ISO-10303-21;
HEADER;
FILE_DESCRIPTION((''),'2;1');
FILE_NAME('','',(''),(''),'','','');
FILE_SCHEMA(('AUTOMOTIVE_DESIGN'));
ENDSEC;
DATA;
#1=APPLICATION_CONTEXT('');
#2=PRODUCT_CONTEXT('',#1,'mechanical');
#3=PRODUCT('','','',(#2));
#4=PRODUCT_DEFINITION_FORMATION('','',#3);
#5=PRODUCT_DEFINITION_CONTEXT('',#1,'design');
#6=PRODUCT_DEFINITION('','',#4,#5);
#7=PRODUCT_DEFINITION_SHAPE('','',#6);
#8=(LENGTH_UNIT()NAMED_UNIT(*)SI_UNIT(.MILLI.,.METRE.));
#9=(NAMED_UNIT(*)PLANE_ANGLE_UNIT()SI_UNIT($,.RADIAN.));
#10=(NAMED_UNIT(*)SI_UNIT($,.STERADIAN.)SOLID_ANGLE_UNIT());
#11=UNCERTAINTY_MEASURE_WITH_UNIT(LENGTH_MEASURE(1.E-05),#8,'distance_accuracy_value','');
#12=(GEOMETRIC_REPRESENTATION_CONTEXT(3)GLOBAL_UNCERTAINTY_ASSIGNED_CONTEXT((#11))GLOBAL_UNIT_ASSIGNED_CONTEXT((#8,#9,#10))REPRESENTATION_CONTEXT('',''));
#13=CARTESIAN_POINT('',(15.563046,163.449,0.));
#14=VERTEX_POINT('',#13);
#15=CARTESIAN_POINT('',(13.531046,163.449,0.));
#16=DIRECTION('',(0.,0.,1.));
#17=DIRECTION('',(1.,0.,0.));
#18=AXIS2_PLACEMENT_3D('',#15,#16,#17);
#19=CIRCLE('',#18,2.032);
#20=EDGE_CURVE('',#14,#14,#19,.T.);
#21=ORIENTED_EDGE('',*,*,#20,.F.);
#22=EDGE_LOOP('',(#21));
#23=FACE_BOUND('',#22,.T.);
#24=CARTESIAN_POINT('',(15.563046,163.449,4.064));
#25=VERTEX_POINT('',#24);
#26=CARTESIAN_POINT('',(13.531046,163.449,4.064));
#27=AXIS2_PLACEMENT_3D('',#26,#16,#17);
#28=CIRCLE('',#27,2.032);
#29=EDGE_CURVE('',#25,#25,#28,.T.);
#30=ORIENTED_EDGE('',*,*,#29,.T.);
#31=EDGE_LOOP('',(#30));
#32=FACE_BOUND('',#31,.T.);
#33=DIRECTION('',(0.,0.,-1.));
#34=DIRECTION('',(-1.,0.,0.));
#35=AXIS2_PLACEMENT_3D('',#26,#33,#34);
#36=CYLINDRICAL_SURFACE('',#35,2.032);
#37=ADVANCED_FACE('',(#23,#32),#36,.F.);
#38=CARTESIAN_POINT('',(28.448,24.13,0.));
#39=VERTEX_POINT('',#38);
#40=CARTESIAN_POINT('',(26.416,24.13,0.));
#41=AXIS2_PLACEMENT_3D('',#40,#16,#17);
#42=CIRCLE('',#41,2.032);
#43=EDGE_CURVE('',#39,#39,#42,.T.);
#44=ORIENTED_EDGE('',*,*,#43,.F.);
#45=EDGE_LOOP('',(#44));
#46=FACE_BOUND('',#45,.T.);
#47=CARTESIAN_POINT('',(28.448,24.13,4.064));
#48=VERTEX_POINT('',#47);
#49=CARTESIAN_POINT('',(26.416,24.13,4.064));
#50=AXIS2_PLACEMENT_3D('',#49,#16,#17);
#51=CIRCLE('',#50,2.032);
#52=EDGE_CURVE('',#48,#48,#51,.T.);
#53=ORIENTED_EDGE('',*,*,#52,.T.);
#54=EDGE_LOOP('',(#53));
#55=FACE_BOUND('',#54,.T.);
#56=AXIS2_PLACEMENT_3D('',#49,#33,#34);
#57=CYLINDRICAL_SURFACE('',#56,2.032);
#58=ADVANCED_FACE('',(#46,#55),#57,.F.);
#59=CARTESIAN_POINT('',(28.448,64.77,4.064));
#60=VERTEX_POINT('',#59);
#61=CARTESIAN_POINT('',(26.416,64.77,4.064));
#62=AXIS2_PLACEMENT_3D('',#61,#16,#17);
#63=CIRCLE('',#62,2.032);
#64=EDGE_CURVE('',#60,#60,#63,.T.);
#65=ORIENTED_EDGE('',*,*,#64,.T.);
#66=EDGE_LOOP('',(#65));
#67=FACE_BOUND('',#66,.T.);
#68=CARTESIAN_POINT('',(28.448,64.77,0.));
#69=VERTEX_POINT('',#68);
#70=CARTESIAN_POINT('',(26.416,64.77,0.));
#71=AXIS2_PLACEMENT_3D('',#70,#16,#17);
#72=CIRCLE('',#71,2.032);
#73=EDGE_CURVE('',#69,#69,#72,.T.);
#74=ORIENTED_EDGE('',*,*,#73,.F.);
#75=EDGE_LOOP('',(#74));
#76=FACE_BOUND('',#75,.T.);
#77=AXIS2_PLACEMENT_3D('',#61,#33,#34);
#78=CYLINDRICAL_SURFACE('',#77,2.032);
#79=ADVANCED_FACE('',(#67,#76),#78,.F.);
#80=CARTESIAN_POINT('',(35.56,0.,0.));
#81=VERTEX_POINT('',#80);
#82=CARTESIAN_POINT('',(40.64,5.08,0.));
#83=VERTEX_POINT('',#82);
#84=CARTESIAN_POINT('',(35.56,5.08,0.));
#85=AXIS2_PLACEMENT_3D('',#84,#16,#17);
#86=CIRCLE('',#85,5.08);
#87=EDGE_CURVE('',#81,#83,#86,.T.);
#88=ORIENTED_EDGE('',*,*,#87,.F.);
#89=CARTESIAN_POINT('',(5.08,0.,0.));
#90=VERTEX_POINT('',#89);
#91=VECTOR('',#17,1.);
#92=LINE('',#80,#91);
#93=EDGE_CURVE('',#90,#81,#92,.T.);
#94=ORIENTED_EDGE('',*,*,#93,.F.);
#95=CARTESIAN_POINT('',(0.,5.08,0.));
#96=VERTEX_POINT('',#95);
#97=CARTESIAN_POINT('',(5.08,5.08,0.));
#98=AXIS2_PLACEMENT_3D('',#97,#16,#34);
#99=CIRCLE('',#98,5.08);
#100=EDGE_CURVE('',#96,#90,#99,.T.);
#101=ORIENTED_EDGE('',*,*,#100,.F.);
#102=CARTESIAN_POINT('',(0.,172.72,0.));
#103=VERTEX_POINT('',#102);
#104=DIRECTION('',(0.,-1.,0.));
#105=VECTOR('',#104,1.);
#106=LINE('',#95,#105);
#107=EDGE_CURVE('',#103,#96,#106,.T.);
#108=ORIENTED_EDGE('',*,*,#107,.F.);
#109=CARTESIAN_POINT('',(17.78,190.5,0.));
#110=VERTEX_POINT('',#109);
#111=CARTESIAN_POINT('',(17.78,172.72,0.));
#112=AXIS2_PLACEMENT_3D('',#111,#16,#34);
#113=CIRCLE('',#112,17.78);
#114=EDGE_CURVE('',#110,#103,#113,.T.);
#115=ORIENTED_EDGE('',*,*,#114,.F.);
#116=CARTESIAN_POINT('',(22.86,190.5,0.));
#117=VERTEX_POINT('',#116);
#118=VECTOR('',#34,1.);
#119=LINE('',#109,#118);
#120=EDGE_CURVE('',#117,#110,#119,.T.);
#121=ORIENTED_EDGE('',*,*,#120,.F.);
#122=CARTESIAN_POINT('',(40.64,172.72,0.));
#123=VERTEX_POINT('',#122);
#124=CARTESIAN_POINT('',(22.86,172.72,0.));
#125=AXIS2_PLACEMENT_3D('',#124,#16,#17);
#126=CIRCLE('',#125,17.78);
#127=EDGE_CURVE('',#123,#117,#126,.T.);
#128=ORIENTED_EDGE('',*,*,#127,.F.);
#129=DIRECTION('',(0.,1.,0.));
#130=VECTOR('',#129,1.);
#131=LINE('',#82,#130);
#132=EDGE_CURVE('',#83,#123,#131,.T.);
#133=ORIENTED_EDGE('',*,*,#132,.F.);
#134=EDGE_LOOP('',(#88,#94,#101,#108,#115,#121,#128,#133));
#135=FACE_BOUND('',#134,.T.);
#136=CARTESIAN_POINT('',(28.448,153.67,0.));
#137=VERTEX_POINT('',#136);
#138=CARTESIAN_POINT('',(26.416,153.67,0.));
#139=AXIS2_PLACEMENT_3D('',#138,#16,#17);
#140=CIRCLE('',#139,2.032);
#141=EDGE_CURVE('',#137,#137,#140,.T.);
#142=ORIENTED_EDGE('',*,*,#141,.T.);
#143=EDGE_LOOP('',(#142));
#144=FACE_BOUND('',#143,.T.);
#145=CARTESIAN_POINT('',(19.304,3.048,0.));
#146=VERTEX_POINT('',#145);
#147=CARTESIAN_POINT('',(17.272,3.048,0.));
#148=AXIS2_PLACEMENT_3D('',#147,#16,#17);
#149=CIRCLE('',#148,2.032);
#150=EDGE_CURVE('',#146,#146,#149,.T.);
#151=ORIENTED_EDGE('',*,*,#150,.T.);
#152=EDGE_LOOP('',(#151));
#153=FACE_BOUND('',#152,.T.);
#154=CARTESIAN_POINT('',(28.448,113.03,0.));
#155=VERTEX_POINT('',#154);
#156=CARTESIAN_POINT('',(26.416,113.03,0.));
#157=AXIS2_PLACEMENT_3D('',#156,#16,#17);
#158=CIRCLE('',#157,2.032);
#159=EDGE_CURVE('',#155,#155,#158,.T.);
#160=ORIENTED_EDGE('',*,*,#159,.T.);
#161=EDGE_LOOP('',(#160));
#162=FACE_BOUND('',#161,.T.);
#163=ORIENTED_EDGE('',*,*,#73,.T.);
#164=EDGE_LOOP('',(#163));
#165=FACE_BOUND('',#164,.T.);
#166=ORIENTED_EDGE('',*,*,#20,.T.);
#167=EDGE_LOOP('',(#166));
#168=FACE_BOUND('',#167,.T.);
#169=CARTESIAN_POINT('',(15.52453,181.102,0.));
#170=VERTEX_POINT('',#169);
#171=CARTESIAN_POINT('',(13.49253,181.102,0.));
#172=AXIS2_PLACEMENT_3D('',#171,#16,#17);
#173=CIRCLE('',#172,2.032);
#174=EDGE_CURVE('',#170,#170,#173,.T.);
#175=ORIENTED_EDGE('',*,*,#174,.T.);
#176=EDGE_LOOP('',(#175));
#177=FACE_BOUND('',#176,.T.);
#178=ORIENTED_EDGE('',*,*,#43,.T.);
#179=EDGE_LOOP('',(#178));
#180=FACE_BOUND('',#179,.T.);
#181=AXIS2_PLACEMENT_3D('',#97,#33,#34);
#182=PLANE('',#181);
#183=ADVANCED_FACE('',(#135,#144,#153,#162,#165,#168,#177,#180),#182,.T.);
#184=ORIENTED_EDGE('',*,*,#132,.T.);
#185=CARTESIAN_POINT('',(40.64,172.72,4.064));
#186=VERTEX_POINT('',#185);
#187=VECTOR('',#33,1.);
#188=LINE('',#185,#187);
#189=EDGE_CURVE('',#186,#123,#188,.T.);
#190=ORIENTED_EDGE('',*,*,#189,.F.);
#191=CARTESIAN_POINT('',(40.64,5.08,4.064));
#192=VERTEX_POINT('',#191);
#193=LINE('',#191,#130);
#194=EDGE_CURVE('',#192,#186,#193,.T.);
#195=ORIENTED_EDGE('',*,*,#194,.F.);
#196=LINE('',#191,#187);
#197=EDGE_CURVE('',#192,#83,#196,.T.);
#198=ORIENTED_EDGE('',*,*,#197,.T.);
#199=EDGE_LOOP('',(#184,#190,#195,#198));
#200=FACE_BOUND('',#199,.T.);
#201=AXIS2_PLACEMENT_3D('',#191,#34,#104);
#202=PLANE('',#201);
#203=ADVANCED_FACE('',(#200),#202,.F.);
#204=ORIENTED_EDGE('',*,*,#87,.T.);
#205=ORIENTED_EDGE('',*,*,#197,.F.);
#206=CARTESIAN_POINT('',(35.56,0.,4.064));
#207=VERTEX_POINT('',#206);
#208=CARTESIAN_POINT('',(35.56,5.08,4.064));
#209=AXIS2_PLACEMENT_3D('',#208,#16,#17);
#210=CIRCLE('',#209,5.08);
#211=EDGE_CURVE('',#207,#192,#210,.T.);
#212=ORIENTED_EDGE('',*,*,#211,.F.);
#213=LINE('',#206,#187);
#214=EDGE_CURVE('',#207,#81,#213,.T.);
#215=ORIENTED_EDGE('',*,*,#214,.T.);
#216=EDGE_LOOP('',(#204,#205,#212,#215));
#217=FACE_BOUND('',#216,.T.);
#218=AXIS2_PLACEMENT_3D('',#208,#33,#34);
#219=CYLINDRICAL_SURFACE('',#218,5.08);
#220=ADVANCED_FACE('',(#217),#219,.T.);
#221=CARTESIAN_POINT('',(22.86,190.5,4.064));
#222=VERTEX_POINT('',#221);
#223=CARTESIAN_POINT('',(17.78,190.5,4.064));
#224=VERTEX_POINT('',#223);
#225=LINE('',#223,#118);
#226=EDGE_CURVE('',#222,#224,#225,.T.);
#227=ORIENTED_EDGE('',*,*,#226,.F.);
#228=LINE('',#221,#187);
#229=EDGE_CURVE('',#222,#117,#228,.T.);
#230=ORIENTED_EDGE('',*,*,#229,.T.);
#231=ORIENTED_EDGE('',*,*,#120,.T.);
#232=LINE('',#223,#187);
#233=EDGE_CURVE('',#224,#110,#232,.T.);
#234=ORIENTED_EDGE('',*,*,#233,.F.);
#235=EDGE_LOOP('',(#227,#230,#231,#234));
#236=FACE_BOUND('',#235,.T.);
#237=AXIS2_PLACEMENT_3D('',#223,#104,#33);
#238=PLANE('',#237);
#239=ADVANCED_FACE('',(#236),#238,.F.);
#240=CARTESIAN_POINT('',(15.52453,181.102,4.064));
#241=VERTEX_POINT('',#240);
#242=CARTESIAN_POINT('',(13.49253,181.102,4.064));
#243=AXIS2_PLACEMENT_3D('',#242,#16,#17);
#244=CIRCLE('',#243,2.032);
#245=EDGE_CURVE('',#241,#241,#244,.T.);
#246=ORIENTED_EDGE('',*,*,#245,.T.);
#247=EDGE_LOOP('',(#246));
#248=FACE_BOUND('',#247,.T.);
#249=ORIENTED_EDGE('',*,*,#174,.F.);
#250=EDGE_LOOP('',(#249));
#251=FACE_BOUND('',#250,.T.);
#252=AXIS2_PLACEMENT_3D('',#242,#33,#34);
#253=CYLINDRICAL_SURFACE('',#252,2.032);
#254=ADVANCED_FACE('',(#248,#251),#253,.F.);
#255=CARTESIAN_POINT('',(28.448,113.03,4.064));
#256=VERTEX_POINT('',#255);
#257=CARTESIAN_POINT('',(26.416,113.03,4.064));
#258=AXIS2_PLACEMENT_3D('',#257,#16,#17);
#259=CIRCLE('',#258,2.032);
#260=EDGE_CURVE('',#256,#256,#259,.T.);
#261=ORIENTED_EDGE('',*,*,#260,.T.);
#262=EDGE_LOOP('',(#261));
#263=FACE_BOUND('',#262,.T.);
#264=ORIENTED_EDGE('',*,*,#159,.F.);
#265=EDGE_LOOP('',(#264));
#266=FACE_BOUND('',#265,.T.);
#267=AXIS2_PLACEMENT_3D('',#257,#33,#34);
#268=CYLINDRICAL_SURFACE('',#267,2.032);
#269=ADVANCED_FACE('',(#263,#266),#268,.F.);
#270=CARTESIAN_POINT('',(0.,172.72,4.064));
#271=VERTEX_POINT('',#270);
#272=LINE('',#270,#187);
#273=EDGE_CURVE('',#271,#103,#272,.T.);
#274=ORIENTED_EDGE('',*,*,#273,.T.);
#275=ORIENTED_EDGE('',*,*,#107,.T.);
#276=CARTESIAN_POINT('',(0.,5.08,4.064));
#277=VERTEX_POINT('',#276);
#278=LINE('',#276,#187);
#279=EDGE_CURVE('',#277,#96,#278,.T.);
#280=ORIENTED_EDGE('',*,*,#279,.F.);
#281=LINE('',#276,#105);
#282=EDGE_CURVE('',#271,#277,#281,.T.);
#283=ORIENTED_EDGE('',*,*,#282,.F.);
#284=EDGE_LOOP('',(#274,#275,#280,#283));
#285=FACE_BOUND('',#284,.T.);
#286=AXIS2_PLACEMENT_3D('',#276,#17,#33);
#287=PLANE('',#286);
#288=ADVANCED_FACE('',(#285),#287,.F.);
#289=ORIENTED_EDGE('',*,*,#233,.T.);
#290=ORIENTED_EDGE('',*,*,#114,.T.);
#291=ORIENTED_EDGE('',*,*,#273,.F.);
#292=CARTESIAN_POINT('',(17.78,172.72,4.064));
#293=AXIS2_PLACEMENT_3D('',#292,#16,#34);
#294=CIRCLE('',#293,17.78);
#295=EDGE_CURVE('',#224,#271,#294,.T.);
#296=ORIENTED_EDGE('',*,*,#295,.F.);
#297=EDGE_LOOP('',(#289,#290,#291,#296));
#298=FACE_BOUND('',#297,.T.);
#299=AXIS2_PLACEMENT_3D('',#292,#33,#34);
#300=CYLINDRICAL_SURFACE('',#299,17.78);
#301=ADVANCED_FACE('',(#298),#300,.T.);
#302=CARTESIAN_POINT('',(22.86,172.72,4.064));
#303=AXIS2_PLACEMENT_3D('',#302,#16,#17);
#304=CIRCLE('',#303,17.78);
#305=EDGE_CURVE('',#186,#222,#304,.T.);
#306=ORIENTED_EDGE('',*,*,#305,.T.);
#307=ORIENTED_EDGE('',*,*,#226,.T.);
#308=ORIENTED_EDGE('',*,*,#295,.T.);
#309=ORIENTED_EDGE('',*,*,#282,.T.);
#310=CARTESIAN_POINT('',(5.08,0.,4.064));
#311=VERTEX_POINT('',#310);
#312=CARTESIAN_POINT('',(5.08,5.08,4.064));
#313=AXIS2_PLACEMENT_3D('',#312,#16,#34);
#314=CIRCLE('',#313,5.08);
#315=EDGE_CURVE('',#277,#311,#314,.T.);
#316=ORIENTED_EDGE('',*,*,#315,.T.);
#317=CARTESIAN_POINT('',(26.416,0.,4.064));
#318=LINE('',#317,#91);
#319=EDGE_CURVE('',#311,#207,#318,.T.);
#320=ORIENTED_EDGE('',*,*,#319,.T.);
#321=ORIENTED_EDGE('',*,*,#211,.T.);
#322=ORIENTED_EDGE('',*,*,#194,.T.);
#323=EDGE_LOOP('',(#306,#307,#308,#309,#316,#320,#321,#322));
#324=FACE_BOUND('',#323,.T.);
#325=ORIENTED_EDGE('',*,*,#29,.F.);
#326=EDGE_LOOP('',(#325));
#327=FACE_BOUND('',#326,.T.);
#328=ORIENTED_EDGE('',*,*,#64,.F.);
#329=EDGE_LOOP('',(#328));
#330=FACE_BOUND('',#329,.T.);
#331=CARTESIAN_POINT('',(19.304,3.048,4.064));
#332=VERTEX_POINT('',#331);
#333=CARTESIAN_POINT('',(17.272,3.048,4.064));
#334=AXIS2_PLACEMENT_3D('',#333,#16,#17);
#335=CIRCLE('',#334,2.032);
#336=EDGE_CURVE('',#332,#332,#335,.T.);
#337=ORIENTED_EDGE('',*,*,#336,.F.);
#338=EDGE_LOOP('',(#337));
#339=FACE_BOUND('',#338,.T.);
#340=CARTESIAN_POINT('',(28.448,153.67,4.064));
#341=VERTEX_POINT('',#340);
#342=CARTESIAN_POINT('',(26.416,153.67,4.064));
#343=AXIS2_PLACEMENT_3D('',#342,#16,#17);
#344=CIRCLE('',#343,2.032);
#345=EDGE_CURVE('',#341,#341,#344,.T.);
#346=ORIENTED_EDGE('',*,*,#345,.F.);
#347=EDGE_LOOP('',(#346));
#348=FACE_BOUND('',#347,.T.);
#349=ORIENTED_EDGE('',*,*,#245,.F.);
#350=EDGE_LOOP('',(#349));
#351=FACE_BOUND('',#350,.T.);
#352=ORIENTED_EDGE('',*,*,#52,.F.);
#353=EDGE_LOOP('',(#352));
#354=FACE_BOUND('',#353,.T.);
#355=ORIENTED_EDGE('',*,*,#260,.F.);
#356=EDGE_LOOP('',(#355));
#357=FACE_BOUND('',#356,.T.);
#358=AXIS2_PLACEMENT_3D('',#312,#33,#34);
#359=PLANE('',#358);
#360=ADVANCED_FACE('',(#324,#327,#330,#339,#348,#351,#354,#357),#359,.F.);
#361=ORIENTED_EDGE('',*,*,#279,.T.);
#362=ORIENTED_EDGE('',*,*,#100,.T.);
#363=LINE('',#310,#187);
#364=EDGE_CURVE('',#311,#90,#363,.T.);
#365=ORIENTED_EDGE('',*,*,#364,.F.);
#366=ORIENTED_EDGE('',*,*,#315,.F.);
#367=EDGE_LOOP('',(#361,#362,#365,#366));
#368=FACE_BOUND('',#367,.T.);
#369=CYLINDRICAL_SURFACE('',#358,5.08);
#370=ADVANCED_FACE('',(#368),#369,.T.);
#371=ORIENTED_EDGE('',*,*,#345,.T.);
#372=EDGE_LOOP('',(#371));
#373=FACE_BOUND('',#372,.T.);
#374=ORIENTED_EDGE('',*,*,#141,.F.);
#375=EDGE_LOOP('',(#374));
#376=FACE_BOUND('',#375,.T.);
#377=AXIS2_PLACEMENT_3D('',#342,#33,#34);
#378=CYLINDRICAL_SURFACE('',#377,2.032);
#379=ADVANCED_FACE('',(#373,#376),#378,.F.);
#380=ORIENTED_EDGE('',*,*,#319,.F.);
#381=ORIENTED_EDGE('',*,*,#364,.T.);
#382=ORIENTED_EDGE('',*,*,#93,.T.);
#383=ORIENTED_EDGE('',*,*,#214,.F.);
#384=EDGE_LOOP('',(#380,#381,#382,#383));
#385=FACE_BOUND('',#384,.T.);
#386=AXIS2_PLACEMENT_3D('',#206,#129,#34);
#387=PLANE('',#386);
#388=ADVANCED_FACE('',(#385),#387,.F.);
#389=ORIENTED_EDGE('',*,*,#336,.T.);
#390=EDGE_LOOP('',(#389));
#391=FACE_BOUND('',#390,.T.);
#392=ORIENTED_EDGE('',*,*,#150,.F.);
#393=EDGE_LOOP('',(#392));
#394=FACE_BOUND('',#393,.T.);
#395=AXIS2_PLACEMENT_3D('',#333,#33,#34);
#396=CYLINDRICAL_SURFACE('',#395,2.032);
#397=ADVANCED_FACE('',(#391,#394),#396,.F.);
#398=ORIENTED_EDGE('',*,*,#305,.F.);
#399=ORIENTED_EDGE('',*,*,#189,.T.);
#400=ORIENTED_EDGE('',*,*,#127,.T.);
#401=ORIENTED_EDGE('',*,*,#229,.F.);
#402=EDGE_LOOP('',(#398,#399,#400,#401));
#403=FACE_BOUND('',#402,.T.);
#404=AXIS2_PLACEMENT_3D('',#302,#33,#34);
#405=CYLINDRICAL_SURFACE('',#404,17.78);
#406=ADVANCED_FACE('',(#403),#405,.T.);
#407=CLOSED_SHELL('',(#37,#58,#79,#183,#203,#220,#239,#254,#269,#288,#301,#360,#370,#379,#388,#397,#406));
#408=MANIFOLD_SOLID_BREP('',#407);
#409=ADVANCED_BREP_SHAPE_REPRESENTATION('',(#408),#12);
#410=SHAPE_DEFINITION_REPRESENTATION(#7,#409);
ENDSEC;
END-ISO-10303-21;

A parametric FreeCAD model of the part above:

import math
import FreeCAD as App
import Part
import Sketcher

V = App.Vector
Q = App.Units.Quantity

doc = App.newDocument("Part")
body = doc.addObject("PartDesign::Body", "Body")

# Sketch on XY plane
sketch1 = body.newObject("Sketcher::SketchObject", "Sketch")
sketch1.AttachmentSupport = (doc.getObject("XY_Plane"), [""])
sketch1.MapMode = "FlatFace"
sketch1.addGeometry(Part.LineSegment(V(40.6, 5.1, 0), V(40.6, 172.7, 0)), False)
sketch1.addGeometry(Part.ArcOfCircle(Part.Circle(V(22.9, 172.7, 0), V(0, 0, 1), 17.8), math.radians(0), math.radians(90)), False)
sketch1.addGeometry(Part.LineSegment(V(22.9, 190.5, 0), V(17.8, 190.5, 0)), False)
sketch1.addGeometry(Part.ArcOfCircle(Part.Circle(V(17.8, 172.7, 0), V(0, 0, 1), 17.8), math.radians(90), math.radians(180)), False)
sketch1.addGeometry(Part.LineSegment(V(0, 172.7, 0), V(0, 5.1, 0)), False)
sketch1.addGeometry(Part.ArcOfCircle(Part.Circle(V(5.1, 5.1, 0), V(0, 0, 1), 5.1), math.radians(-180), math.radians(-90)), False)
sketch1.addGeometry(Part.LineSegment(V(5.1, 0, 0), V(35.6, 0, 0)), False)
sketch1.addGeometry(Part.ArcOfCircle(Part.Circle(V(35.6, 5.1, 0), V(0, 0, 1), 5.1), math.radians(-90), math.radians(0)), False)
sketch1.addGeometry(Part.Circle(V(17.3, 3, 0), V(0, 0, 1), 2), False)
sketch1.addGeometry(Part.Circle(V(26.4, 24.1, 0), V(0, 0, 1), 2), False)
sketch1.addGeometry(Part.Circle(V(26.4, 64.8, 0), V(0, 0, 1), 2), False)
sketch1.addGeometry(Part.Circle(V(13.5, 163.4, 0), V(0, 0, 1), 2), False)
sketch1.addGeometry(Part.Circle(V(13.5, 181.1, 0), V(0, 0, 1), 2), False)
sketch1.addGeometry(Part.Circle(V(26.4, 113, 0), V(0, 0, 1), 2), False)
sketch1.addGeometry(Part.Circle(V(26.4, 153.7, 0), V(0, 0, 1), 2), False)
sketch1.addConstraint(Sketcher.Constraint("Tangent", 0, 2, 1, 1))
sketch1.addConstraint(Sketcher.Constraint("Tangent", 1, 2, 2, 1))
sketch1.addConstraint(Sketcher.Constraint("Tangent", 2, 2, 3, 1))
sketch1.addConstraint(Sketcher.Constraint("Tangent", 3, 2, 4, 1))
sketch1.addConstraint(Sketcher.Constraint("Tangent", 4, 2, 5, 1))
sketch1.addConstraint(Sketcher.Constraint("Tangent", 5, 2, 6, 1))
sketch1.addConstraint(Sketcher.Constraint("Tangent", 6, 2, 7, 1))
sketch1.addConstraint(Sketcher.Constraint("Tangent", 7, 2, 0, 1))
sketch1.addConstraint(Sketcher.Constraint("Vertical", 0))
sketch1.addConstraint(Sketcher.Constraint("Horizontal", 2))
sketch1.addConstraint(Sketcher.Constraint("Vertical", 4))
sketch1.addConstraint(Sketcher.Constraint("Horizontal", 6))
sketch1.addConstraint(Sketcher.Constraint("Equal", 1, 3))
sketch1.addConstraint(Sketcher.Constraint("Equal", 5, 7))
sketch1.addConstraint(Sketcher.Constraint("Equal", 8, 9))
sketch1.addConstraint(Sketcher.Constraint("Equal", 9, 10))
sketch1.addConstraint(Sketcher.Constraint("Equal", 10, 11))
sketch1.addConstraint(Sketcher.Constraint("Equal", 11, 12))
sketch1.addConstraint(Sketcher.Constraint("Equal", 12, 13))
sketch1.addConstraint(Sketcher.Constraint("Equal", 13, 14))
sketch1.addConstraint(Sketcher.Constraint("PointOnObject", 3, 2, -2))
sketch1.addConstraint(Sketcher.Constraint("PointOnObject", 5, 2, -1))
sketch1.addConstraint(Sketcher.Constraint("Vertical", 9, 3, 10, 3))
sketch1.addConstraint(Sketcher.Constraint("Vertical", 10, 3, 13, 3))
sketch1.addConstraint(Sketcher.Constraint("Vertical", 13, 3, 14, 3))
sketch1.addConstraint(Sketcher.Constraint("Radius", 1, Q("0.7 in")))
sketch1.addConstraint(Sketcher.Constraint("Radius", 5, Q("0.2 in")))
sketch1.addConstraint(Sketcher.Constraint("Diameter", 8, Q("0.16 in")))
sketch1.addConstraint(Sketcher.Constraint("DistanceX", 2, 2, 2, 1, Q("0.2 in")))
sketch1.addConstraint(Sketcher.Constraint("DistanceY", 0, 1, 0, 2, Q("6.6 in")))
sketch1.addConstraint(Sketcher.Constraint("DistanceY", 9, 3, 10, 3, Q("1.6 in")))
sketch1.addConstraint(Sketcher.Constraint("DistanceY", 10, 3, 13, 3, Q("1.9 in")))
sketch1.addConstraint(Sketcher.Constraint("DistanceY", 13, 3, 14, 3, Q("1.6 in")))
sketch1.addConstraint(Sketcher.Constraint("DistanceX", -1, 1, 8, 3, Q("0.68 in")))
sketch1.addConstraint(Sketcher.Constraint("DistanceY", -1, 1, 8, 3, Q("0.12 in")))
sketch1.addConstraint(Sketcher.Constraint("DistanceX", -1, 1, 9, 3, Q("1.04 in")))
sketch1.addConstraint(Sketcher.Constraint("DistanceY", -1, 1, 9, 3, Q("0.95 in")))
sketch1.addConstraint(Sketcher.Constraint("DistanceY", -1, 1, 12, 3, Q("7.13 in")))
sketch1.addConstraint(Sketcher.Constraint("DistanceY", -1, 1, 11, 3, Q("6.435 in")))
sketch1.addConstraint(Sketcher.Constraint("DistanceX", -1, 1, 12, 3, Q("13.49253 mm")))
sketch1.addConstraint(Sketcher.Constraint("DistanceX", -1, 1, 11, 3, Q("13.531046 mm")))
pad1 = body.newObject("PartDesign::Pad", "Pad")
pad1.Profile = sketch1
pad1.Length = Q("0.16 in")

doc.recompute()
